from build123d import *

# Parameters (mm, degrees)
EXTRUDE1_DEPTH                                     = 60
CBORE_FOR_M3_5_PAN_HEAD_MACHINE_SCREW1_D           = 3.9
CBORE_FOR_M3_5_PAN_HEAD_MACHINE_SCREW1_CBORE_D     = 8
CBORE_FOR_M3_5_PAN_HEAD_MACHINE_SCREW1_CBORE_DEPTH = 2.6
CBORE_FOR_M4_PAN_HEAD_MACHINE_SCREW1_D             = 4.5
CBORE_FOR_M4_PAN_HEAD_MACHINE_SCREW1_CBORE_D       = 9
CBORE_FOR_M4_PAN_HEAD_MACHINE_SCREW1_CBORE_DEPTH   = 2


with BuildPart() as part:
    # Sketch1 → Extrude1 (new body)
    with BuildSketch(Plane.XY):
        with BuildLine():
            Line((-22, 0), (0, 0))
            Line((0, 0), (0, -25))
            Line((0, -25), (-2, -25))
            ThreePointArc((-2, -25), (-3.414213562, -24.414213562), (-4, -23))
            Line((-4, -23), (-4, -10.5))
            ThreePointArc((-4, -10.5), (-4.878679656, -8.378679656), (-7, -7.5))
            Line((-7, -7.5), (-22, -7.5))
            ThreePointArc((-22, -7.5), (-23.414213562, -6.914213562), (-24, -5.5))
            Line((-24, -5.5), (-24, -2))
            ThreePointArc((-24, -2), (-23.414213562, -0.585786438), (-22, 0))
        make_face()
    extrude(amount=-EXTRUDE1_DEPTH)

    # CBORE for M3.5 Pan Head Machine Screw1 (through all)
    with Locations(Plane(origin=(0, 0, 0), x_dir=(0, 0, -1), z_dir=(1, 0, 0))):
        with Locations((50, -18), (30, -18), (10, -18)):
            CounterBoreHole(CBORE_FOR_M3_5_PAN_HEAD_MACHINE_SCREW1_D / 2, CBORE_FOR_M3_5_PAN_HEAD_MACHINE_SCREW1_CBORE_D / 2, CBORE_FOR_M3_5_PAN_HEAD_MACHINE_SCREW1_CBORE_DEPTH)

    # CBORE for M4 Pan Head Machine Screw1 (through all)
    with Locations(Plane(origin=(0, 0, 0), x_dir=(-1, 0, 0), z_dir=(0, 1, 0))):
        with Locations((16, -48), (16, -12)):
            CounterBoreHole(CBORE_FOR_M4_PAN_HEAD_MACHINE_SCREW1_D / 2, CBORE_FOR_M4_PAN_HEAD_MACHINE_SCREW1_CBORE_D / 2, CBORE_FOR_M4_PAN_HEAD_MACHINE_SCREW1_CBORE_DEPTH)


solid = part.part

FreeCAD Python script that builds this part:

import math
import FreeCAD as App
import Part
import Sketcher
from FreeCAD import Vector

doc = App.newDocument("Part")
params = doc.addObject("Spreadsheet::Sheet", "Params")
for row, (alias, value) in enumerate([
    ("sketch1_radius", "2 mm"),
    ("sketch1_radius2", "3 mm"),
    ("sketch1_width", "22 mm"),
    ("sketch1_width2", "15 mm"),
    ("sketch1_height", "25 mm"),
    ("pad1_length", "60 mm"),
    ("sketch2_diameter", "3.9 mm"),
    ("hole_diameter", "3.9 mm"),
    ("hole_cbore_diameter", "8 mm"),
    ("hole_cbore_depth", "2.6 mm"),
    ("sketch3_diameter", "4.5 mm"),
    ("hole2_diameter", "4.5 mm"),
    ("hole2_cbore_diameter", "9 mm"),
    ("hole2_cbore_depth", "2 mm"),
], start=1):
    params.set(f"A{row}", alias)
    params.set(f"B{row}", "=" + value)
    params.setAlias(f"B{row}", alias)

body = doc.addObject("PartDesign::Body", "Body")

# Sketch on XY plane
sketch1 = body.newObject("Sketcher::SketchObject", "Sketch")
sketch1.AttachmentSupport = (doc.getObject("XY_Plane"), [""])
sketch1.MapMode = "FlatFace"
sketch1.addGeometry(Part.LineSegment(Vector(0, 0, 0), Vector(-22, 0, 0)), False)
sketch1.addGeometry(Part.ArcOfCircle(Part.Circle(Vector(-22, -2, 0), Vector(0, 0, 1), 2), math.radians(90), math.radians(180)), False)
sketch1.addGeometry(Part.LineSegment(Vector(-24, -2, 0), Vector(-24, -5.5, 0)), False)
sketch1.addGeometry(Part.ArcOfCircle(Part.Circle(Vector(-22, -5.5, 0), Vector(0, 0, 1), 2), math.radians(-180), math.radians(-90)), False)
sketch1.addGeometry(Part.LineSegment(Vector(-22, -7.5, 0), Vector(-7, -7.5, 0)), False)
sketch1.addGeometry(Part.ArcOfCircle(Part.Circle(Vector(-7, -10.5, 0), Vector(0, 0, 1), 3), math.radians(0), math.radians(90)), False)
sketch1.addGeometry(Part.LineSegment(Vector(-4, -10.5, 0), Vector(-4, -23, 0)), False)
sketch1.addGeometry(Part.ArcOfCircle(Part.Circle(Vector(-2, -23, 0), Vector(0, 0, 1), 2), math.radians(-180), math.radians(-90)), False)
sketch1.addGeometry(Part.LineSegment(Vector(-2, -25, 0), Vector(0, -25, 0)), False)
sketch1.addGeometry(Part.LineSegment(Vector(0, -25, 0), Vector(0, 0, 0)), False)
sketch1.addConstraint(Sketcher.Constraint("Tangent", 0, 2, 1, 1))
sketch1.addConstraint(Sketcher.Constraint("Tangent", 1, 2, 2, 1))
sketch1.addConstraint(Sketcher.Constraint("Tangent", 2, 2, 3, 1))
sketch1.addConstraint(Sketcher.Constraint("Tangent", 3, 2, 4, 1))
sketch1.addConstraint(Sketcher.Constraint("Tangent", 4, 2, 5, 2))
sketch1.addConstraint(Sketcher.Constraint("Tangent", 5, 1, 6, 1))
sketch1.addConstraint(Sketcher.Constraint("Tangent", 6, 2, 7, 1))
sketch1.addConstraint(Sketcher.Constraint("Tangent", 7, 2, 8, 1))
sketch1.addConstraint(Sketcher.Constraint("Coincident", 8, 2, 9, 1))
sketch1.addConstraint(Sketcher.Constraint("Coincident", 9, 2, 0, 1))
sketch1.addConstraint(Sketcher.Constraint("Horizontal", 0))
sketch1.addConstraint(Sketcher.Constraint("Vertical", 2))
sketch1.addConstraint(Sketcher.Constraint("Horizontal", 4))
sketch1.addConstraint(Sketcher.Constraint("Vertical", 6))
sketch1.addConstraint(Sketcher.Constraint("Horizontal", 8))
sketch1.addConstraint(Sketcher.Constraint("Vertical", 9))
sketch1.addConstraint(Sketcher.Constraint("Coincident", 9, 2, -1, 1))
sketch1.addConstraint(Sketcher.Constraint("Equal", 1, 3))
sketch1.addConstraint(Sketcher.Constraint("Equal", 3, 7))
sketch1.addConstraint(Sketcher.Constraint("Radius", 1, 2.0))
sketch1.addConstraint(Sketcher.Constraint("Radius", 5, 3.0))
sketch1.addConstraint(Sketcher.Constraint("DistanceX", 0, 2, 0, 1, 22.0))
sketch1.addConstraint(Sketcher.Constraint("DistanceX", 4, 1, 4, 2, 15.0))
sketch1.addConstraint(Sketcher.Constraint("DistanceY", 9, 1, 9, 2, 25.0))
sketch1.addConstraint(Sketcher.Constraint("DistanceY", 2, 2, 2, 1, 3.5))
sketch1.setExpression("Constraints[19]", "Params.sketch1_radius")
sketch1.setExpression("Constraints[20]", "Params.sketch1_radius2")
sketch1.setExpression("Constraints[21]", "Params.sketch1_width")
sketch1.setExpression("Constraints[22]", "Params.sketch1_width2")
sketch1.setExpression("Constraints[23]", "Params.sketch1_height")
pad1 = body.newObject("PartDesign::Pad", "Pad")
pad1.Profile = sketch1
pad1.setExpression("Length", "Params.pad1_length")
pad1.Reversed = True

# Sketch on YZ plane
sketch2 = body.newObject("Sketcher::SketchObject", "Sketch001")
sketch2.AttachmentSupport = (doc.getObject("YZ_Plane"), [""])
sketch2.MapMode = "FlatFace"
sketch2.addGeometry(Part.Circle(Vector(-18, -50, 0), Vector(0, 0, 1), 1.9), False)
sketch2.addGeometry(Part.Circle(Vector(-18, -30, 0), Vector(0, 0, 1), 1.9), False)
sketch2.addGeometry(Part.Circle(Vector(-18, -10, 0), Vector(0, 0, 1), 1.9), False)
sketch2.addConstraint(Sketcher.Constraint("Equal", 0, 1))
sketch2.addConstraint(Sketcher.Constraint("Equal", 1, 2))
sketch2.addConstraint(Sketcher.Constraint("Vertical", 0, 3, 1, 3))
sketch2.addConstraint(Sketcher.Constraint("Vertical", 1, 3, 2, 3))
sketch2.addConstraint(Sketcher.Constraint("Diameter", 0, 3.9))
sketch2.addConstraint(Sketcher.Constraint("DistanceX", 0, 3, -1, 1, 18.0))
sketch2.addConstraint(Sketcher.Constraint("DistanceY", 0, 3, -1, 1, 50.0))
sketch2.addConstraint(Sketcher.Constraint("DistanceY", 1, 3, -1, 1, 30.0))
sketch2.addConstraint(Sketcher.Constraint("DistanceY", 2, 3, -1, 1, 10.0))
sketch2.setExpression("Constraints[4]", "Params.sketch2_diameter")
doc.recompute()
hole = body.newObject("PartDesign::Hole", "Hole")
hole.Profile = sketch2
hole.ThreadType = "None"
hole.setExpression("Diameter", "Params.hole_diameter")
hole.DepthType = "ThroughAll"
hole.HoleCutType = "Counterbore"
hole.setExpression("HoleCutDiameter", "Params.hole_cbore_diameter")
hole.setExpression("HoleCutDepth", "Params.hole_cbore_depth")

# Sketch on XZ plane
sketch3 = body.newObject("Sketcher::SketchObject", "Sketch002")
sketch3.AttachmentSupport = (doc.getObject("XZ_Plane"), [""])
sketch3.MapMode = "FlatFace"
sketch3.addGeometry(Part.Circle(Vector(-16, -48, 0), Vector(0, 0, 1), 2.2), False)
sketch3.addGeometry(Part.Circle(Vector(-16, -12, 0), Vector(0, 0, 1), 2.2), False)
sketch3.addConstraint(Sketcher.Constraint("Equal", 0, 1))
sketch3.addConstraint(Sketcher.Constraint("Vertical", 0, 3, 1, 3))
sketch3.addConstraint(Sketcher.Constraint("Diameter", 0, 4.5))
sketch3.addConstraint(Sketcher.Constraint("DistanceX", 0, 3, -1, 1, 16.0))
sketch3.addConstraint(Sketcher.Constraint("DistanceY", 0, 3, -1, 1, 48.0))
sketch3.addConstraint(Sketcher.Constraint("DistanceY", 1, 3, -1, 1, 12.0))
sketch3.setExpression("Constraints[2]", "Params.sketch3_diameter")
doc.recompute()
hole2 = body.newObject("PartDesign::Hole", "Hole001")
hole2.Profile = sketch3
hole2.ThreadType = "None"
hole2.setExpression("Diameter", "Params.hole2_diameter")
hole2.DepthType = "ThroughAll"
hole2.HoleCutType = "Counterbore"
hole2.setExpression("HoleCutDiameter", "Params.hole2_cbore_diameter")
hole2.setExpression("HoleCutDepth", "Params.hole2_cbore_depth")
hole2.Reversed = True

doc.recompute()
